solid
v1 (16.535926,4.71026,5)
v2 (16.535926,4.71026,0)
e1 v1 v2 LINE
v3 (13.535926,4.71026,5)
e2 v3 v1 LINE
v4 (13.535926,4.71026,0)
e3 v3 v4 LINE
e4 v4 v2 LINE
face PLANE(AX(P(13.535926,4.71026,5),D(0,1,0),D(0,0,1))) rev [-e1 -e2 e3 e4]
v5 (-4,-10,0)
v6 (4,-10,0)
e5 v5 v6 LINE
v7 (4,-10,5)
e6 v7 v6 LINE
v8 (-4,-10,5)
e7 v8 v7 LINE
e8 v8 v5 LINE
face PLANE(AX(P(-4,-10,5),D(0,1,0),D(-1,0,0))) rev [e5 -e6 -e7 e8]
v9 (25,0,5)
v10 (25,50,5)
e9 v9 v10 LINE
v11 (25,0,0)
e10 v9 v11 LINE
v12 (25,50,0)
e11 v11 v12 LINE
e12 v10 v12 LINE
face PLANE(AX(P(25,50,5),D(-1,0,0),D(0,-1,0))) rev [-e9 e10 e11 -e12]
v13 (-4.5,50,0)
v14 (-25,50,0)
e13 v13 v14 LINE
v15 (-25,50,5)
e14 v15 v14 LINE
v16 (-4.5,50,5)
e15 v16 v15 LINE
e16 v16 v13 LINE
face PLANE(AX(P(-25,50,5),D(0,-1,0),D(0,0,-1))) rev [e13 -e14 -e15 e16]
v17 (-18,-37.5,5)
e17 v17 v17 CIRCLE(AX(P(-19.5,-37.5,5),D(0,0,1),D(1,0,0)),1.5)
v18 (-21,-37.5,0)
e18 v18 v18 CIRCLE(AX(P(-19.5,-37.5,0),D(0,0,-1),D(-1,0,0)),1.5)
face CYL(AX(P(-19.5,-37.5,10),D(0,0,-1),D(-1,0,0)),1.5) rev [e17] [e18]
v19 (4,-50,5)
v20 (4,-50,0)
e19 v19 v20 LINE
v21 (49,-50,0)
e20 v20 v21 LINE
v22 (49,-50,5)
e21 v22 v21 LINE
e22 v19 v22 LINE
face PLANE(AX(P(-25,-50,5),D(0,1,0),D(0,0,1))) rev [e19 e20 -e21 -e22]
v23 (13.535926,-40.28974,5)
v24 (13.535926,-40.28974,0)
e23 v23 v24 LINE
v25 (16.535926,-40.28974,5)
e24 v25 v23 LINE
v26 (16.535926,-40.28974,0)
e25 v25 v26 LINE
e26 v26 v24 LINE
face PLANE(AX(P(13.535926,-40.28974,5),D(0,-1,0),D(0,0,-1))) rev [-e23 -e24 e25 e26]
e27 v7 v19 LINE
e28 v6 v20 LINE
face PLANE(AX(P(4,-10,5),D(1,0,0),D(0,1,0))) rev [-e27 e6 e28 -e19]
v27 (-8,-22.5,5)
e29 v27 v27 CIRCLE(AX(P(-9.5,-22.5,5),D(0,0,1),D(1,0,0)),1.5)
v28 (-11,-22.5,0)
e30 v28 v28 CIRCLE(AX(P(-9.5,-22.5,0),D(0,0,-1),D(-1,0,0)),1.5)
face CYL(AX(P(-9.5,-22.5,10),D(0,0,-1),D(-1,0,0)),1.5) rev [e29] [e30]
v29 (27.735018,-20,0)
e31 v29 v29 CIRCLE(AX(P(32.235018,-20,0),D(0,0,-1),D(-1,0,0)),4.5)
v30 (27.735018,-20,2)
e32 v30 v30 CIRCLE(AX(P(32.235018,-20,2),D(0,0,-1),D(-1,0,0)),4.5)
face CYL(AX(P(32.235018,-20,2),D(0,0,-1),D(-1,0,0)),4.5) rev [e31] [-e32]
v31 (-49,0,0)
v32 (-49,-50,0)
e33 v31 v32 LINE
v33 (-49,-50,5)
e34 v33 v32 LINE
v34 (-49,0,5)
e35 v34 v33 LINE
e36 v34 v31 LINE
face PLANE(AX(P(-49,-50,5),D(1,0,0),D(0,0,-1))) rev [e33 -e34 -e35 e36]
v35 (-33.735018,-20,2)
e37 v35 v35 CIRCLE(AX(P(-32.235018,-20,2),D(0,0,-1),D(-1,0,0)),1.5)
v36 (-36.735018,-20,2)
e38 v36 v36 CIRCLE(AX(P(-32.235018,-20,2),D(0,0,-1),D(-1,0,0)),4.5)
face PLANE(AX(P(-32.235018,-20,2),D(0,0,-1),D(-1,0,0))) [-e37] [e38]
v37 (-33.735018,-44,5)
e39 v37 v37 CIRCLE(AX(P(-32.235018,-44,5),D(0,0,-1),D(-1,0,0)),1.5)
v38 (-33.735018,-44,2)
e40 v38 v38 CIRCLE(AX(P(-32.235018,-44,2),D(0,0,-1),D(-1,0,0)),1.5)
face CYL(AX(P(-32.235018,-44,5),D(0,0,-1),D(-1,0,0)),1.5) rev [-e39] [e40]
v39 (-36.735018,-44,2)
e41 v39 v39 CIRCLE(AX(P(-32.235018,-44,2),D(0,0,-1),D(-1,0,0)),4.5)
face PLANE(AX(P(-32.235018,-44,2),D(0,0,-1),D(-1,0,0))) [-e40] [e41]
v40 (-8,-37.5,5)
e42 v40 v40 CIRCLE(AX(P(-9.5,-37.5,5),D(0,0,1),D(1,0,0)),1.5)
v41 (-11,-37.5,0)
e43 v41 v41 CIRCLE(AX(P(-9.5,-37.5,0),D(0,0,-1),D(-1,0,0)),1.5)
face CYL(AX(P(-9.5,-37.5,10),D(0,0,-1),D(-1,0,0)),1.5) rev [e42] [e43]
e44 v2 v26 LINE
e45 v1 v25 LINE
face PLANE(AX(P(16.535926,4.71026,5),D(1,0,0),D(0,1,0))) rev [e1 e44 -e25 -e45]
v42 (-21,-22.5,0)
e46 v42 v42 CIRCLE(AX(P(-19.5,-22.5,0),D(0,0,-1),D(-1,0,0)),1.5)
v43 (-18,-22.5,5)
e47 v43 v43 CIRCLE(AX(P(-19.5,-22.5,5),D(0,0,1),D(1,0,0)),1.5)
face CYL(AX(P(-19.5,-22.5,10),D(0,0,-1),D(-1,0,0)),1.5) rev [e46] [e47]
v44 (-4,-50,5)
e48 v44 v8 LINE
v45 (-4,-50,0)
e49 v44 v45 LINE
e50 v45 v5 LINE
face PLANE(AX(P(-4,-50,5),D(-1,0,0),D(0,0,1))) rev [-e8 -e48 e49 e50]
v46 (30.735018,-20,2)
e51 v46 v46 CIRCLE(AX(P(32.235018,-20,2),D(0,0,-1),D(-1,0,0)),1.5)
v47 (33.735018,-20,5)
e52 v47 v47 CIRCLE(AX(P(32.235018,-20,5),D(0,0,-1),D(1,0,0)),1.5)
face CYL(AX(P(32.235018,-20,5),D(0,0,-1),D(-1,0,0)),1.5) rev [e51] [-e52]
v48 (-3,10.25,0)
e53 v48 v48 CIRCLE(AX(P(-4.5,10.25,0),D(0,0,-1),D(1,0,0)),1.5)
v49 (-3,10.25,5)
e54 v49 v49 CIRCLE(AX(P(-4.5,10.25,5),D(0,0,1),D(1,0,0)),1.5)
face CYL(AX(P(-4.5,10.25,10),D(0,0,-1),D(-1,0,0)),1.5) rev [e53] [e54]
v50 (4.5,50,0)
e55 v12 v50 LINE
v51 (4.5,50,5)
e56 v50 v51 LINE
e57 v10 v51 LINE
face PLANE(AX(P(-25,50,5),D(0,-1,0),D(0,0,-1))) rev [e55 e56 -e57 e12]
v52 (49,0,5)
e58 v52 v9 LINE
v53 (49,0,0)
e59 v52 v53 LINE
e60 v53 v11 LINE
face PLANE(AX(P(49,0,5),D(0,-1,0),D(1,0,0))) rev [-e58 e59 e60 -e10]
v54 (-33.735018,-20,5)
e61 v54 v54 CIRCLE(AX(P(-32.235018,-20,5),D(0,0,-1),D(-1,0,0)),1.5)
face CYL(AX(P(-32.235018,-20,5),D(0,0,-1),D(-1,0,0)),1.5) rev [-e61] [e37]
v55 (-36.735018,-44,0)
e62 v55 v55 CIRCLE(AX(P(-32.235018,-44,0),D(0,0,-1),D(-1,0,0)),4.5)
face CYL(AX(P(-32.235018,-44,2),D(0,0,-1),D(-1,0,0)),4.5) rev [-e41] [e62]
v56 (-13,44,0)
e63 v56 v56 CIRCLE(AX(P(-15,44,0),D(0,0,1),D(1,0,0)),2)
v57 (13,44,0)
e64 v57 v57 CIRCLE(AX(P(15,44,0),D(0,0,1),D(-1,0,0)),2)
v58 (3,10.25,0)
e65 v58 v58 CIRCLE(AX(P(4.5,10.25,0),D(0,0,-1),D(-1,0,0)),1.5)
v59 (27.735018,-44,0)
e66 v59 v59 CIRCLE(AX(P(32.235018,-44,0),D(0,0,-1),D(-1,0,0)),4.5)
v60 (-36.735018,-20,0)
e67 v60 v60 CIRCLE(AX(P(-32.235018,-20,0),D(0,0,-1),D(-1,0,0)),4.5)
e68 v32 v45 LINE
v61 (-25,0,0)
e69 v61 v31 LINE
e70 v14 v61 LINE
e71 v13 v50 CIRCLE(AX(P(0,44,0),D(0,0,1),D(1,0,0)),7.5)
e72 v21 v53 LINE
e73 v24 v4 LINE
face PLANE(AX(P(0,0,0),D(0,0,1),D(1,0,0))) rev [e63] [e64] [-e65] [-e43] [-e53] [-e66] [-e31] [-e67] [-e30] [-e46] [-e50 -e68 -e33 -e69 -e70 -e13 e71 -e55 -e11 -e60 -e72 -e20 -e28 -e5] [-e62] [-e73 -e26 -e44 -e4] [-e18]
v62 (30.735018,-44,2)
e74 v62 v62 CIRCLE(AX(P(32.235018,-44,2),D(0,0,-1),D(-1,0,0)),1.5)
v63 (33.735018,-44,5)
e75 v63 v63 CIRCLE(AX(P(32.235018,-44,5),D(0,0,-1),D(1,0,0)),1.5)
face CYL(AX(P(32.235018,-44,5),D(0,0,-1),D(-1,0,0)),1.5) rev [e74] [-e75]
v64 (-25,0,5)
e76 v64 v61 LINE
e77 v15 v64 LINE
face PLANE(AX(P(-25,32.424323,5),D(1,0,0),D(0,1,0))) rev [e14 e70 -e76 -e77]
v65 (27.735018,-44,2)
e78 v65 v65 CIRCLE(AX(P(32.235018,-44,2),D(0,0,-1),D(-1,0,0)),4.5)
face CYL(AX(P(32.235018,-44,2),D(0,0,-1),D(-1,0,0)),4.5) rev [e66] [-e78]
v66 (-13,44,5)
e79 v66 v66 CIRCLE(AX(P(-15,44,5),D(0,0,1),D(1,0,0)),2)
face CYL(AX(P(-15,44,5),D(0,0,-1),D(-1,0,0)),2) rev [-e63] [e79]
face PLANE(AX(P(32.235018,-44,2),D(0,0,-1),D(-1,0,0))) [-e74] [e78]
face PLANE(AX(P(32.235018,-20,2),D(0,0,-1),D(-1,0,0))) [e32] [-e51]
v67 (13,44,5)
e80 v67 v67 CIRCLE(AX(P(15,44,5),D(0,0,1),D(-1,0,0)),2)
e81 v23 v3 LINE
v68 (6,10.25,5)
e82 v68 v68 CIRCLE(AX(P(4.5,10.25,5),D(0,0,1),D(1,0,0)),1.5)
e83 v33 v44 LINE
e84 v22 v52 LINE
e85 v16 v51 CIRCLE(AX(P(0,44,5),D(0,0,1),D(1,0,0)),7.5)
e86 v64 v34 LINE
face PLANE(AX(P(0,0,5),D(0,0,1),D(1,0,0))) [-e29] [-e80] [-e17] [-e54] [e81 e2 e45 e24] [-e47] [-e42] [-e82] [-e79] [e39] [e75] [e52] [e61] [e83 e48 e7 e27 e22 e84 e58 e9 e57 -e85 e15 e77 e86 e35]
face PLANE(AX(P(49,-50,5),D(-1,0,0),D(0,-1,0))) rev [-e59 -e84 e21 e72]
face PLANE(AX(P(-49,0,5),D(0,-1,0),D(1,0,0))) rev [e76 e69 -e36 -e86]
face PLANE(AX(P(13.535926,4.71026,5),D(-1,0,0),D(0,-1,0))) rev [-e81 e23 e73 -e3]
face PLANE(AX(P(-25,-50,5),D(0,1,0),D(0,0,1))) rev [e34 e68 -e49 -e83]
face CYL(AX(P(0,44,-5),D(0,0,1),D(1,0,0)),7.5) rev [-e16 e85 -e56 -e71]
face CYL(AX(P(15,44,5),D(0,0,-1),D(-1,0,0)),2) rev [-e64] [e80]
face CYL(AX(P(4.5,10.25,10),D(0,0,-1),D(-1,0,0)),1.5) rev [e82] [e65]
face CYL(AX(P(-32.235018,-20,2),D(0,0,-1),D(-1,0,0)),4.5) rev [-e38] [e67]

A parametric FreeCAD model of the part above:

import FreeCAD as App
import Part
import Sketcher
from FreeCAD import Vector
Q = App.Units.Quantity


def add_polygon(sketch, points):
    """Adds a closed chain of lines whose ends are joined by coincident constraints."""
    first, n = sketch.GeometryCount, len(points)
    for a, b in zip(points, points[1:] + points[:1]):
        sketch.addGeometry(Part.LineSegment(App.Vector(*a, 0), App.Vector(*b, 0)), False)
    for i in range(n):
        sketch.addConstraint(Sketcher.Constraint("Coincident", first + i, 2, first + (i + 1) % n, 1))

doc = App.newDocument("Part")
params = doc.addObject("Spreadsheet::Sheet", "Params")
for row, (alias, value) in enumerate([
    ("sketch1_diameter", "4 mm"),
    ("sketch1_width", "50 mm"),
    ("sketch1_width2", "24 mm"),
    ("pad1_length", "5 mm"),
    ("sketch2_diameter", "15 mm"),
    ("pocket1_length", "10 mm"),
    ("sketch3_width", "8 mm"),
    ("sketch3_height", "40 mm"),
    ("sketch4_diameter", "3 mm"),
    ("sketch5_diameter", "9 mm"),
    ("sketch5_diameter2", "3 mm"),
    ("pocket4_length", "2 mm"),
    ("sketch6_width", "3 mm"),
    ("sketch6_height", "45 mm"),
    ("sketch7_diameter", "3 mm"),
    ("pocket6_length", "10 mm"),
    ("sketch8_diameter", "3 mm"),
    ("pocket7_length", "10 mm"),
], start=1):
    params.set(f"A{row}", alias)
    params.set(f"B{row}", "=" + value)
    params.setAlias(f"B{row}", alias)

body = doc.addObject("PartDesign::Body", "Body")

# Sketch on XY plane
sketch1 = doc.addObject("Sketcher::SketchObject", "Sketch")
body.addObject(sketch1)
sketch1.AttachmentSupport = (doc.XY_Plane, [""])
sketch1.MapMode = "FlatFace"
add_polygon(sketch1, [(25, 50), (-25, 50), (-25, 0), (-49, 0), (-49, -50), (49, -50), (49, 0), (25, 0)])  # lines 0-7
sketch1.addGeometry(Part.Circle(Vector(15, 44, 0), Vector(0, 0, 1), 2), False)  # 8
sketch1.addGeometry(Part.Circle(Vector(-15, 44, 0), Vector(0, 0, 1), 2), False)  # 9
sketch1.addConstraint(Sketcher.Constraint("Horizontal", 0))
sketch1.addConstraint(Sketcher.Constraint("Vertical", 1))
sketch1.addConstraint(Sketcher.Constraint("Horizontal", 2))
sketch1.addConstraint(Sketcher.Constraint("Vertical", 3))
sketch1.addConstraint(Sketcher.Constraint("Horizontal", 4))
sketch1.addConstraint(Sketcher.Constraint("Vertical", 5))
sketch1.addConstraint(Sketcher.Constraint("Horizontal", 6))
sketch1.addConstraint(Sketcher.Constraint("Vertical", 7))
sketch1.addConstraint(Sketcher.Constraint("Equal", 8, 9))
sketch1.addConstraint(Sketcher.Constraint("Symmetric", 2, 2, 5, 2, -1, 1))
sketch1.addConstraint(Sketcher.Constraint("Symmetric", 8, 3, 9, 3, -2))
sketch1.addConstraint(Sketcher.Constraint("Symmetric", 1, 2, 6, 2, -2))
sketch1.addConstraint(Sketcher.Constraint("Equal", 0, 1))
sketch1.addConstraint(Sketcher.Constraint("Equal", 1, 3))
sketch1.addConstraint(Sketcher.Constraint("Diameter", 8, Q("4 mm")))
sketch1.addConstraint(Sketcher.Constraint("DistanceX", 0, 2, 0, 1, Q("50 mm")))
sketch1.addConstraint(Sketcher.Constraint("DistanceX", 2, 2, 2, 1, Q("24 mm")))
sketch1.addConstraint(Sketcher.Constraint("DistanceX", -1, 1, 8, 3, Q("15 mm")))
sketch1.addConstraint(Sketcher.Constraint("DistanceY", -1, 1, 8, 3, Q("44 mm")))
sketch1.setExpression("Constraints[22]", "Params.sketch1_diameter")
sketch1.setExpression("Constraints[23]", "Params.sketch1_width")
sketch1.setExpression("Constraints[24]", "Params.sketch1_width2")
pad1 = doc.addObject("PartDesign::Pad", "Pad")
body.addObject(pad1)
pad1.Profile = sketch1
pad1.setExpression("Length", "Params.pad1_length")

# Sketch on XY plane
sketch2 = doc.addObject("Sketcher::SketchObject", "Sketch001")
body.addObject(sketch2)
sketch2.AttachmentSupport = (doc.XY_Plane, [""])
sketch2.MapMode = "FlatFace"
sketch2.AttachmentOffset = App.Placement(Vector(0, 0, 5), App.Rotation())
sketch2.addGeometry(Part.Circle(Vector(0, 44, 0), Vector(0, 0, 1), 8), False)
sketch2.addConstraint(Sketcher.Constraint("PointOnObject", 0, 3, -2))
sketch2.addConstraint(Sketcher.Constraint("Diameter", 0, Q("15 mm")))
sketch2.addConstraint(Sketcher.Constraint("DistanceY", -1, 1, 0, 3, Q("44 mm")))
sketch2.setExpression("Constraints[1]", "Params.sketch2_diameter")
pocket1 = doc.addObject("PartDesign::Pocket", "Pocket")
body.addObject(pocket1)
pocket1.Profile = sketch2
pocket1.setExpression("Length", "Params.pocket1_length")

# Sketch on XY plane
sketch3 = doc.addObject("Sketcher::SketchObject", "Sketch002")
body.addObject(sketch3)
sketch3.AttachmentSupport = (doc.XY_Plane, [""])
sketch3.MapMode = "FlatFace"
add_polygon(sketch3, [(4, -10), (4, -50), (-4, -50), (-4, -10)])  # lines 0-3
sketch3.addConstraint(Sketcher.Constraint("Vertical", 0))
sketch3.addConstraint(Sketcher.Constraint("Horizontal", 1))
sketch3.addConstraint(Sketcher.Constraint("Vertical", 2))
sketch3.addConstraint(Sketcher.Constraint("Horizontal", 3))
sketch3.addConstraint(Sketcher.Constraint("DistanceX", 1, 2, 1, 1, Q("8 mm")))
sketch3.addConstraint(Sketcher.Constraint("DistanceY", 0, 2, 0, 1, Q("40 mm")))
sketch3.addConstraint(Sketcher.Constraint("DistanceX", -1, 1, 0, 2, Q("4 mm")))
sketch3.addConstraint(Sketcher.Constraint("DistanceY", 0, 2, -1, 1, Q("50 mm")))
sketch3.setExpression("Constraints[8]", "Params.sketch3_width")
sketch3.setExpression("Constraints[9]", "Params.sketch3_height")
pocket2 = doc.addObject("PartDesign::Pocket", "Pocket001")
body.addObject(pocket2)
pocket2.Profile = sketch3
pocket2.Type = "ThroughAll"
pocket2.Reversed = True

# Sketch on XY plane
sketch4 = doc.addObject("Sketcher::SketchObject", "Sketch003")
body.addObject(sketch4)
sketch4.AttachmentSupport = (doc.XY_Plane, [""])
sketch4.MapMode = "FlatFace"
sketch4.addGeometry(Part.Circle(Vector(32.2, -44, 0), Vector(0, 0, 1), 1.5), False)
sketch4.addGeometry(Part.Circle(Vector(32.2, -20, 0), Vector(0, 0, 1), 1.5), False)
sketch4.addGeometry(Part.Circle(Vector(-32.2, -44, 0), Vector(0, 0, 1), 1.5), False)
sketch4.addGeometry(Part.Circle(Vector(-32.2, -20, 0), Vector(0, 0, 1), 1.5), False)
sketch4.addConstraint(Sketcher.Constraint("Equal", 0, 1))
sketch4.addConstraint(Sketcher.Constraint("Equal", 1, 2))
sketch4.addConstraint(Sketcher.Constraint("Equal", 2, 3))
sketch4.addConstraint(Sketcher.Constraint("Symmetric", 0, 3, 2, 3, -2))
sketch4.addConstraint(Sketcher.Constraint("Symmetric", 1, 3, 3, 3, -2))
sketch4.addConstraint(Sketcher.Constraint("Vertical", 0, 3, 1, 3))
sketch4.addConstraint(Sketcher.Constraint("Diameter", 0, Q("3 mm")))
sketch4.addConstraint(Sketcher.Constraint("DistanceY", 0, 3, -1, 1, Q("44 mm")))
sketch4.addConstraint(Sketcher.Constraint("DistanceY", 1, 3, -1, 1, Q("20 mm")))
sketch4.addConstraint(Sketcher.Constraint("DistanceX", -1, 1, 0, 3, Q("32.235018 mm")))
sketch4.setExpression("Constraints[6]", "Params.sketch4_diameter")
pocket3 = doc.addObject("PartDesign::Pocket", "Pocket002")
body.addObject(pocket3)
pocket3.Profile = sketch4
pocket3.Type = "ThroughAll"
pocket3.Reversed = True

# Sketch on XY plane
sketch5 = doc.addObject("Sketcher::SketchObject", "Sketch004")
body.addObject(sketch5)
sketch5.AttachmentSupport = (doc.XY_Plane, [""])
sketch5.MapMode = "FlatFace"
sketch5.addGeometry(Part.Circle(Vector(32.2, -44, 0), Vector(0, 0, 1), 4.5), False)
sketch5.addGeometry(Part.Circle(Vector(32.2, -44, 0), Vector(0, 0, 1), 1.5), False)
sketch5.addGeometry(Part.Circle(Vector(32.2, -20, 0), Vector(0, 0, 1), 4.5), False)
sketch5.addGeometry(Part.Circle(Vector(32.2, -20, 0), Vector(0, 0, 1), 1.5), False)
sketch5.addGeometry(Part.Circle(Vector(-32.2, -20, 0), Vector(0, 0, 1), 4.5), False)
sketch5.addGeometry(Part.Circle(Vector(-32.2, -20, 0), Vector(0, 0, 1), 1.5), False)
sketch5.addGeometry(Part.Circle(Vector(-32.2, -44, 0), Vector(0, 0, 1), 4.5), False)
sketch5.addGeometry(Part.Circle(Vector(-32.2, -44, 0), Vector(0, 0, 1), 1.5), False)
sketch5.addConstraint(Sketcher.Constraint("Coincident", 1, 3, 0, 3))
sketch5.addConstraint(Sketcher.Constraint("Coincident", 3, 3, 2, 3))
sketch5.addConstraint(Sketcher.Constraint("Coincident", 5, 3, 4, 3))
sketch5.addConstraint(Sketcher.Constraint("Coincident", 7, 3, 6, 3))
sketch5.addConstraint(Sketcher.Constraint("Equal", 0, 2))
sketch5.addConstraint(Sketcher.Constraint("Equal", 1, 3))
sketch5.addConstraint(Sketcher.Constraint("Equal", 2, 4))
sketch5.addConstraint(Sketcher.Constraint("Equal", 3, 5))
sketch5.addConstraint(Sketcher.Constraint("Equal", 4, 6))
sketch5.addConstraint(Sketcher.Constraint("Equal", 5, 7))
sketch5.addConstraint(Sketcher.Constraint("Symmetric", 2, 3, 4, 3, -2))
sketch5.addConstraint(Sketcher.Constraint("Symmetric", 0, 3, 6, 3, -2))
sketch5.addConstraint(Sketcher.Constraint("Vertical", 1, 3, 2, 3))
sketch5.addConstraint(Sketcher.Constraint("Diameter", 0, Q("9 mm")))
sketch5.addConstraint(Sketcher.Constraint("Diameter", 1, Q("3 mm")))
sketch5.addConstraint(Sketcher.Constraint("DistanceY", 0, 3, -1, 1, Q("44 mm")))
sketch5.addConstraint(Sketcher.Constraint("DistanceY", 2, 3, -1, 1, Q("20 mm")))
sketch5.addConstraint(Sketcher.Constraint("DistanceX", -1, 1, 0, 3, Q("32.235018 mm")))
sketch5.setExpression("Constraints[13]", "Params.sketch5_diameter")
sketch5.setExpression("Constraints[14]", "Params.sketch5_diameter2")
pocket4 = doc.addObject("PartDesign::Pocket", "Pocket003")
body.addObject(pocket4)
pocket4.Profile = sketch5
pocket4.setExpression("Length", "Params.pocket4_length")
pocket4.Reversed = True

# Sketch on XY plane
sketch6 = doc.addObject("Sketcher::SketchObject", "Sketch005")
body.addObject(sketch6)
sketch6.AttachmentSupport = (doc.XY_Plane, [""])
sketch6.MapMode = "FlatFace"
add_polygon(sketch6, [(16.5, 4.7), (16.5, -40.3), (13.5, -40.3), (13.5, 4.7)])  # lines 0-3
sketch6.addConstraint(Sketcher.Constraint("Vertical", 0))
sketch6.addConstraint(Sketcher.Constraint("Horizontal", 1))
sketch6.addConstraint(Sketcher.Constraint("Vertical", 2))
sketch6.addConstraint(Sketcher.Constraint("Horizontal", 3))
sketch6.addConstraint(Sketcher.Constraint("DistanceX", 1, 2, 1, 1, Q("3 mm")))
sketch6.addConstraint(Sketcher.Constraint("DistanceY", 0, 2, 0, 1, Q("45 mm")))
sketch6.addConstraint(Sketcher.Constraint("DistanceY", 0, 2, -1, 1, Q("40.28974 mm")))
sketch6.addConstraint(Sketcher.Constraint("DistanceX", -1, 1, 0, 2, Q("16.535926 mm")))
sketch6.setExpression("Constraints[8]", "Params.sketch6_width")
sketch6.setExpression("Constraints[9]", "Params.sketch6_height")
pocket5 = doc.addObject("PartDesign::Pocket", "Pocket004")
body.addObject(pocket5)
pocket5.Profile = sketch6
pocket5.Type = "ThroughAll"
pocket5.Reversed = True

# Sketch on XY plane
sketch7 = doc.addObject("Sketcher::SketchObject", "Sketch006")
body.addObject(sketch7)
sketch7.AttachmentSupport = (doc.XY_Plane, [""])
sketch7.MapMode = "FlatFace"
sketch7.addGeometry(Part.Circle(Vector(4.5, 10.2, 0), Vector(0, 0, 1), 1.5), False)
sketch7.addGeometry(Part.Circle(Vector(-4.5, 10.2, 0), Vector(0, 0, 1), 1.5), False)
sketch7.addConstraint(Sketcher.Constraint("Equal", 0, 1))
sketch7.addConstraint(Sketcher.Constraint("Symmetric", 0, 3, 1, 3, -2))
sketch7.addConstraint(Sketcher.Constraint("Diameter", 0, Q("3 mm")))
sketch7.addConstraint(Sketcher.Constraint("DistanceX", 1, 3, 0, 3, Q("9 mm")))
sketch7.addConstraint(Sketcher.Constraint("DistanceY", -1, 1, 0, 3, Q("10.25 mm")))
sketch7.setExpression("Constraints[2]", "Params.sketch7_diameter")
pocket6 = doc.addObject("PartDesign::Pocket", "Pocket005")
body.addObject(pocket6)
pocket6.Profile = sketch7
pocket6.setExpression("Length", "Params.pocket6_length")
pocket6.Reversed = True

# Sketch on XY plane
sketch8 = doc.addObject("Sketcher::SketchObject", "Sketch007")
body.addObject(sketch8)
sketch8.AttachmentSupport = (doc.XY_Plane, [""])
sketch8.MapMode = "FlatFace"
sketch8.addGeometry(Part.Circle(Vector(-9.5, -22.5, 0), Vector(0, 0, 1), 1.5), False)
sketch8.addGeometry(Part.Circle(Vector(-19.5, -22.5, 0), Vector(0, 0, 1), 1.5), False)
sketch8.addGeometry(Part.Circle(Vector(-19.5, -37.5, 0), Vector(0, 0, 1), 1.5), False)
sketch8.addGeometry(Part.Circle(Vector(-9.5, -37.5, 0), Vector(0, 0, 1), 1.5), False)
sketch8.addConstraint(Sketcher.Constraint("Equal", 0, 1))
sketch8.addConstraint(Sketcher.Constraint("Equal", 1, 2))
sketch8.addConstraint(Sketcher.Constraint("Equal", 2, 3))
sketch8.addConstraint(Sketcher.Constraint("Horizontal", 0, 3, 1, 3))
sketch8.addConstraint(Sketcher.Constraint("Horizontal", 2, 3, 3, 3))
sketch8.addConstraint(Sketcher.Constraint("Vertical", 1, 3, 2, 3))
sketch8.addConstraint(Sketcher.Constraint("Vertical", 0, 3, 3, 3))
sketch8.addConstraint(Sketcher.Constraint("Diameter", 0, Q("3 mm")))
sketch8.addConstraint(Sketcher.Constraint("DistanceX", 1, 3, 0, 3, Q("10 mm")))
sketch8.addConstraint(Sketcher.Constraint("DistanceY", 2, 3, 1, 3, Q("15 mm")))
sketch8.addConstraint(Sketcher.Constraint("DistanceX", 0, 3, -1, 1, Q("9.5 mm")))
sketch8.addConstraint(Sketcher.Constraint("DistanceY", 0, 3, -1, 1, Q("22.5 mm")))
sketch8.setExpression("Constraints[7]", "Params.sketch8_diameter")
pocket7 = doc.addObject("PartDesign::Pocket", "Pocket006")
body.addObject(pocket7)
pocket7.Profile = sketch8
pocket7.setExpression("Length", "Params.pocket7_length")
pocket7.Reversed = True

doc.recompute()
